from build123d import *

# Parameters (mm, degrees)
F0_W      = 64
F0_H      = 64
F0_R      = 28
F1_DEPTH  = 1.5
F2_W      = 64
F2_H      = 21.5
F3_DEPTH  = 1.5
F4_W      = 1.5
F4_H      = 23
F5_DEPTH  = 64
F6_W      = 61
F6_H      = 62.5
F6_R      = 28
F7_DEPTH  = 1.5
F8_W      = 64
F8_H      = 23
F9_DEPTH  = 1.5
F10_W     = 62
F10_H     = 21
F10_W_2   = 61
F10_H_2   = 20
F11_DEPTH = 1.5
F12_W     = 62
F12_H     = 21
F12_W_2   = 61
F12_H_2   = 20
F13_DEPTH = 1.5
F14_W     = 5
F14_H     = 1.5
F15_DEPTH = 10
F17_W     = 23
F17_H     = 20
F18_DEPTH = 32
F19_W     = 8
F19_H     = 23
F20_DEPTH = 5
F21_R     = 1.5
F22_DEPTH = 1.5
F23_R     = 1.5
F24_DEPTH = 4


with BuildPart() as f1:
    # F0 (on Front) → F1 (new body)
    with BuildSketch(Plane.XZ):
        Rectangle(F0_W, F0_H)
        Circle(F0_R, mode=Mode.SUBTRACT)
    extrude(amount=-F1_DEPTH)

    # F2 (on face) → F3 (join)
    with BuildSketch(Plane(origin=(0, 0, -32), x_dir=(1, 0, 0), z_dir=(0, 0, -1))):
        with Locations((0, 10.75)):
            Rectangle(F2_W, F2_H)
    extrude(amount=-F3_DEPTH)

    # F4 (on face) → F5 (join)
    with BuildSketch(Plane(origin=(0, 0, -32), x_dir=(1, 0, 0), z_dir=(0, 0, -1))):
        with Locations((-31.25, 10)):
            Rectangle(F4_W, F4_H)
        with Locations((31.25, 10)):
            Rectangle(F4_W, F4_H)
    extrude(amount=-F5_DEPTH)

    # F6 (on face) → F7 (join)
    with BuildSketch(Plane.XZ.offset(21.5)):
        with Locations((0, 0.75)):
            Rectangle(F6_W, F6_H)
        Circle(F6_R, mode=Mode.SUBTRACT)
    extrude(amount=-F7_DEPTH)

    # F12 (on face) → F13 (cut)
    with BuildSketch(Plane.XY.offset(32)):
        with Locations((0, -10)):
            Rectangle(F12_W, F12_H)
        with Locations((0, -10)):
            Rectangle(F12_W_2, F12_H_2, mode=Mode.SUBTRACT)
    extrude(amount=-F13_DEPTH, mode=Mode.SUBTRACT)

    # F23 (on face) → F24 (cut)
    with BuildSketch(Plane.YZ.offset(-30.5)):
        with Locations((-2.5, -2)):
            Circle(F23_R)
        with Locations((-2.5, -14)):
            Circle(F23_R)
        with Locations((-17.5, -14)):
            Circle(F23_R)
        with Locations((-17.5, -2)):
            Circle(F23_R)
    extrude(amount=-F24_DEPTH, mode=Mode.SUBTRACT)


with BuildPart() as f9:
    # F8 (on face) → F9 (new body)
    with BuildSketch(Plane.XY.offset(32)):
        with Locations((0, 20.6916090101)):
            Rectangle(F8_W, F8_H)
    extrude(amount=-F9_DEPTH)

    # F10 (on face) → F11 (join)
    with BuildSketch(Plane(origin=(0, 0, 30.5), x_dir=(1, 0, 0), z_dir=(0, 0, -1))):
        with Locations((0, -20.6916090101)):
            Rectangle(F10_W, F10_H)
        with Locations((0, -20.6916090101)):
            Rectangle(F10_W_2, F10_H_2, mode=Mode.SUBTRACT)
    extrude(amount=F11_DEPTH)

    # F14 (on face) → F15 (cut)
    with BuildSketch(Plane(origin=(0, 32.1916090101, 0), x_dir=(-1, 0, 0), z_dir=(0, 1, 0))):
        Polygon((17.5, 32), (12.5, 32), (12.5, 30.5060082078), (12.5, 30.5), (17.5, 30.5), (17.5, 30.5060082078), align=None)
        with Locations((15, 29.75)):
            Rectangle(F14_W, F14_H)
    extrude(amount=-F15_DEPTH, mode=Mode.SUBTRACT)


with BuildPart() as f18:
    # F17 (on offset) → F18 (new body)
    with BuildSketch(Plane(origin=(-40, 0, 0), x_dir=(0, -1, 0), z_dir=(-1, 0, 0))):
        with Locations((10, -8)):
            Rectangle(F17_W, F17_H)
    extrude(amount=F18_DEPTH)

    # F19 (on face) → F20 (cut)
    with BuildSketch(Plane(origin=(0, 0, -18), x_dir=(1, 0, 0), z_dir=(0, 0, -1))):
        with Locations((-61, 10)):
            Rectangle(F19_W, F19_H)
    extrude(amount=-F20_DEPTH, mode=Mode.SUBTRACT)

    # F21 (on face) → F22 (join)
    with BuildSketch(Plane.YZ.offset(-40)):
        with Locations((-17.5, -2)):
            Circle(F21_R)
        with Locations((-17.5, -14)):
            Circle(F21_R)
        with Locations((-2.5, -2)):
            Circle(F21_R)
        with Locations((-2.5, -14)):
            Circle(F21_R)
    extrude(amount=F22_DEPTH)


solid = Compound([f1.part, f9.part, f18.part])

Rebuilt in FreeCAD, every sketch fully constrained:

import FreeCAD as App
import Part
import Sketcher

V = App.Vector
Q = App.Units.Quantity

doc = App.newDocument("Part")
body = doc.addObject("PartDesign::Body", "Body")

sketch1 = doc.addObject("Sketcher::SketchObject", "Sketch")
body.addObject(sketch1)
sketch1.AttachmentSupport = (doc.XZ_Plane, [""])
sketch1.MapMode = "FlatFace"
sketch1.addGeometry(Part.LineSegment(V(-32, 32, 0), V(-32, -32, 0)), False)
sketch1.addGeometry(Part.LineSegment(V(-32, -32, 0), V(32, -32, 0)), False)
sketch1.addGeometry(Part.LineSegment(V(32, -32, 0), V(32, 32, 0)), False)
sketch1.addGeometry(Part.LineSegment(V(32, 32, 0), V(-32, 32, 0)), False)
sketch1.addGeometry(Part.Circle(V(0, 0, 0), V(0, 0, 1), 28), False)
sketch1.addConstraint(Sketcher.Constraint("Coincident", 0, 2, 1, 1))
sketch1.addConstraint(Sketcher.Constraint("Coincident", 1, 2, 2, 1))
sketch1.addConstraint(Sketcher.Constraint("Coincident", 2, 2, 3, 1))
sketch1.addConstraint(Sketcher.Constraint("Coincident", 3, 2, 0, 1))
sketch1.addConstraint(Sketcher.Constraint("Vertical", 0))
sketch1.addConstraint(Sketcher.Constraint("Horizontal", 1))
sketch1.addConstraint(Sketcher.Constraint("Vertical", 2))
sketch1.addConstraint(Sketcher.Constraint("Horizontal", 3))
sketch1.addConstraint(Sketcher.Constraint("Coincident", 4, 3, -1, 1))
sketch1.addConstraint(Sketcher.Constraint("Symmetric", 0, 2, 2, 2, -1, 1))
sketch1.addConstraint(Sketcher.Constraint("Equal", 3, 0))
sketch1.addConstraint(Sketcher.Constraint("Diameter", 4, Q("56 mm")))
sketch1.addConstraint(Sketcher.Constraint("DistanceX", 1, 1, 1, 2, Q("64 mm")))
pad1 = doc.addObject("PartDesign::Pad", "Pad")
body.addObject(pad1)
pad1.Profile = sketch1
pad1.Length = 1.5
pad1.Reversed = True

sketch2 = doc.addObject("Sketcher::SketchObject", "Sketch001")
body.addObject(sketch2)
sketch2.AttachmentSupport = (doc.XY_Plane, [""])
sketch2.MapMode = "FlatFace"
sketch2.AttachmentOffset = App.Placement(V(0, 0, -32), App.Rotation())
sketch2.addGeometry(Part.LineSegment(V(-32, -22, 0), V(-32, 0, 0)), False)
sketch2.addGeometry(Part.LineSegment(V(-32, 0, 0), V(32, 0, 0)), False)
sketch2.addGeometry(Part.LineSegment(V(32, 0, 0), V(32, -22, 0)), False)
sketch2.addGeometry(Part.LineSegment(V(32, -22, 0), V(-32, -22, 0)), False)
sketch2.addConstraint(Sketcher.Constraint("Coincident", 0, 2, 1, 1))
sketch2.addConstraint(Sketcher.Constraint("Coincident", 1, 2, 2, 1))
sketch2.addConstraint(Sketcher.Constraint("Coincident", 2, 2, 3, 1))
sketch2.addConstraint(Sketcher.Constraint("Coincident", 3, 2, 0, 1))
sketch2.addConstraint(Sketcher.Constraint("Vertical", 0))
sketch2.addConstraint(Sketcher.Constraint("Horizontal", 1))
sketch2.addConstraint(Sketcher.Constraint("Vertical", 2))
sketch2.addConstraint(Sketcher.Constraint("Horizontal", 3))
sketch2.addConstraint(Sketcher.Constraint("Symmetric", 0, 2, 1, 2, -1, 1))
sketch2.addConstraint(Sketcher.Constraint("DistanceX", 1, 1, 1, 2, Q("64 mm")))
sketch2.addConstraint(Sketcher.Constraint("DistanceY", 0, 1, 0, 2, Q("21.5 mm")))
pad2 = doc.addObject("PartDesign::Pad", "Pad001")
body.addObject(pad2)
pad2.Profile = sketch2
pad2.Length = 1.5

sketch3 = doc.addObject("Sketcher::SketchObject", "Sketch002")
body.addObject(sketch3)
sketch3.AttachmentSupport = (doc.XY_Plane, [""])
sketch3.MapMode = "FlatFace"
sketch3.AttachmentOffset = App.Placement(V(0, 0, -32), App.Rotation())
sketch3.addGeometry(Part.LineSegment(V(-32, -21.5, 0), V(-32, 1.5, 0)), False)
sketch3.addGeometry(Part.LineSegment(V(-32, 1.5, 0), V(-30.5, 1.5, 0)), False)
sketch3.addGeometry(Part.LineSegment(V(-30.5, 1.5, 0), V(-30.5, -21.5, 0)), False)
sketch3.addGeometry(Part.LineSegment(V(-30.5, -21.5, 0), V(-32, -21.5, 0)), False)
sketch3.addGeometry(Part.LineSegment(V(30.5, -21.5, 0), V(30.5, 1.5, 0)), False)
sketch3.addGeometry(Part.LineSegment(V(30.5, 1.5, 0), V(32, 1.5, 0)), False)
sketch3.addGeometry(Part.LineSegment(V(32, 1.5, 0), V(32, -21.5, 0)), False)
sketch3.addGeometry(Part.LineSegment(V(32, -21.5, 0), V(30.5, -21.5, 0)), False)
sketch3.addConstraint(Sketcher.Constraint("Coincident", 0, 2, 1, 1))
sketch3.addConstraint(Sketcher.Constraint("Coincident", 1, 2, 2, 1))
sketch3.addConstraint(Sketcher.Constraint("Coincident", 2, 2, 3, 1))
sketch3.addConstraint(Sketcher.Constraint("Coincident", 3, 2, 0, 1))
sketch3.addConstraint(Sketcher.Constraint("Coincident", 4, 2, 5, 1))
sketch3.addConstraint(Sketcher.Constraint("Coincident", 5, 2, 6, 1))
sketch3.addConstraint(Sketcher.Constraint("Coincident", 6, 2, 7, 1))
sketch3.addConstraint(Sketcher.Constraint("Coincident", 7, 2, 4, 1))
sketch3.addConstraint(Sketcher.Constraint("Vertical", 0))
sketch3.addConstraint(Sketcher.Constraint("Horizontal", 1))
sketch3.addConstraint(Sketcher.Constraint("Vertical", 2))
sketch3.addConstraint(Sketcher.Constraint("Horizontal", 3))
sketch3.addConstraint(Sketcher.Constraint("Vertical", 4))
sketch3.addConstraint(Sketcher.Constraint("Horizontal", 5))
sketch3.addConstraint(Sketcher.Constraint("Vertical", 6))
sketch3.addConstraint(Sketcher.Constraint("Horizontal", 7))
sketch3.addConstraint(Sketcher.Constraint("Symmetric", 1, 2, 4, 2, -2))
sketch3.addConstraint(Sketcher.Constraint("Symmetric", 3, 2, 6, 2, -2))
sketch3.addConstraint(Sketcher.Constraint("DistanceY", 0, 1, 0, 2, Q("23 mm")))
sketch3.addConstraint(Sketcher.Constraint("DistanceX", 1, 1, 1, 2, Q("1.5 mm")))
sketch3.addConstraint(Sketcher.Constraint("DistanceX", 0, 2, -1, 1, Q("32 mm")))
sketch3.addConstraint(Sketcher.Constraint("DistanceY", -1, 1, 0, 2, Q("1.5 mm")))
pad3 = doc.addObject("PartDesign::Pad", "Pad002")
body.addObject(pad3)
pad3.Profile = sketch3
pad3.Length = 64

sketch4 = doc.addObject("Sketcher::SketchObject", "Sketch003")
body.addObject(sketch4)
sketch4.AttachmentSupport = (doc.XZ_Plane, [""])
sketch4.MapMode = "FlatFace"
sketch4.AttachmentOffset = App.Placement(V(0, 0, 21.5), App.Rotation())
sketch4.addGeometry(Part.LineSegment(V(-30, 32, 0), V(-30, -30, 0)), False)
sketch4.addGeometry(Part.LineSegment(V(-30, -30, 0), V(30, -30, 0)), False)
sketch4.addGeometry(Part.LineSegment(V(30, -30, 0), V(30, 32, 0)), False)
sketch4.addGeometry(Part.LineSegment(V(30, 32, 0), V(-30, 32, 0)), False)
sketch4.addGeometry(Part.Circle(V(0, 0, 0), V(0, 0, 1), 28), False)
sketch4.addConstraint(Sketcher.Constraint("Coincident", 0, 2, 1, 1))
sketch4.addConstraint(Sketcher.Constraint("Coincident", 1, 2, 2, 1))
sketch4.addConstraint(Sketcher.Constraint("Coincident", 2, 2, 3, 1))
sketch4.addConstraint(Sketcher.Constraint("Coincident", 3, 2, 0, 1))
sketch4.addConstraint(Sketcher.Constraint("Vertical", 0))
sketch4.addConstraint(Sketcher.Constraint("Horizontal", 1))
sketch4.addConstraint(Sketcher.Constraint("Vertical", 2))
sketch4.addConstraint(Sketcher.Constraint("Horizontal", 3))
sketch4.addConstraint(Sketcher.Constraint("Coincident", 4, 3, -1, 1))
sketch4.addConstraint(Sketcher.Constraint("Diameter", 4, Q("56 mm")))
sketch4.addConstraint(Sketcher.Constraint("DistanceX", 1, 1, 1, 2, Q("61 mm")))
sketch4.addConstraint(Sketcher.Constraint("DistanceY", 0, 2, 0, 1, Q("62.5 mm")))
sketch4.addConstraint(Sketcher.Constraint("DistanceY", -1, 1, 2, 2, Q("32 mm")))
sketch4.addConstraint(Sketcher.Constraint("DistanceX", 0, 2, -1, 1, Q("30.5 mm")))
pad4 = doc.addObject("PartDesign::Pad", "Pad003")
body.addObject(pad4)
pad4.Profile = sketch4
pad4.Length = 1.5
pad4.Reversed = True

sketch5 = doc.addObject("Sketcher::SketchObject", "Sketch004")
body.addObject(sketch5)
sketch5.AttachmentSupport = (doc.XY_Plane, [""])
sketch5.MapMode = "FlatFace"
sketch5.AttachmentOffset = App.Placement(V(0, 0, 32), App.Rotation())
sketch5.addGeometry(Part.LineSegment(V(-31, 0, 0), V(-31, -20, 0)), False)
sketch5.addGeometry(Part.LineSegment(V(-31, -20, 0), V(31, -20, 0)), False)
sketch5.addGeometry(Part.LineSegment(V(31, -20, 0), V(31, 0, 0)), False)
sketch5.addGeometry(Part.LineSegment(V(31, 0, 0), V(-31, 0, 0)), False)
sketch5.addGeometry(Part.LineSegment(V(30, -20, 0), V(-30, -20, 0)), False)
sketch5.addGeometry(Part.LineSegment(V(-30, -20, 0), V(-30, 0, 0)), False)
sketch5.addGeometry(Part.LineSegment(V(-30, 0, 0), V(30, 0, 0)), False)
sketch5.addGeometry(Part.LineSegment(V(30, 0, 0), V(30, -20, 0)), False)
sketch5.addConstraint(Sketcher.Constraint("Coincident", 0, 2, 1, 1))
sketch5.addConstraint(Sketcher.Constraint("Coincident", 1, 2, 2, 1))
sketch5.addConstraint(Sketcher.Constraint("Coincident", 2, 2, 3, 1))
sketch5.addConstraint(Sketcher.Constraint("Coincident", 3, 2, 0, 1))
sketch5.addConstraint(Sketcher.Constraint("Coincident", 4, 2, 5, 1))
sketch5.addConstraint(Sketcher.Constraint("Coincident", 5, 2, 6, 1))
sketch5.addConstraint(Sketcher.Constraint("Coincident", 6, 2, 7, 1))
sketch5.addConstraint(Sketcher.Constraint("Coincident", 7, 2, 4, 1))
sketch5.addConstraint(Sketcher.Constraint("Vertical", 0))
sketch5.addConstraint(Sketcher.Constraint("Horizontal", 1))
sketch5.addConstraint(Sketcher.Constraint("Vertical", 2))
sketch5.addConstraint(Sketcher.Constraint("Horizontal", 3))
sketch5.addConstraint(Sketcher.Constraint("Horizontal", 4))
sketch5.addConstraint(Sketcher.Constraint("Vertical", 5))
sketch5.addConstraint(Sketcher.Constraint("Horizontal", 6))
sketch5.addConstraint(Sketcher.Constraint("Vertical", 7))
sketch5.addConstraint(Sketcher.Constraint("Symmetric", 5, 2, 6, 2, -1, 1))
sketch5.addConstraint(Sketcher.Constraint("DistanceX", 1, 1, 1, 2, Q("62 mm")))
sketch5.addConstraint(Sketcher.Constraint("DistanceX", 4, 2, 4, 1, Q("61 mm")))
sketch5.addConstraint(Sketcher.Constraint("DistanceY", 0, 2, 0, 1, Q("21 mm")))
sketch5.addConstraint(Sketcher.Constraint("DistanceY", 5, 1, 5, 2, Q("20 mm")))
sketch5.addConstraint(Sketcher.Constraint("DistanceX", 0, 2, -1, 1, Q("31 mm")))
sketch5.addConstraint(Sketcher.Constraint("DistanceY", 0, 2, -1, 1, Q("20.5 mm")))
pocket1 = doc.addObject("PartDesign::Pocket", "Pocket")
body.addObject(pocket1)
pocket1.Profile = sketch5
pocket1.Length = 1.5

sketch6 = doc.addObject("Sketcher::SketchObject", "Sketch005")
body.addObject(sketch6)
sketch6.AttachmentSupport = (doc.YZ_Plane, [""])
sketch6.MapMode = "FlatFace"
sketch6.AttachmentOffset = App.Placement(V(0, 0, -30.5), App.Rotation())
sketch6.addGeometry(Part.Circle(V(-2.5, -2, 0), V(0, 0, 1), 1.5), False)
sketch6.addGeometry(Part.Circle(V(-2.5, -14, 0), V(0, 0, 1), 1.5), False)
sketch6.addGeometry(Part.Circle(V(-17.5, -14, 0), V(0, 0, 1), 1.5), False)
sketch6.addGeometry(Part.Circle(V(-17.5, -2, 0), V(0, 0, 1), 1.5), False)
sketch6.addConstraint(Sketcher.Constraint("Equal", 0, 1))
sketch6.addConstraint(Sketcher.Constraint("Equal", 1, 2))
sketch6.addConstraint(Sketcher.Constraint("Equal", 2, 3))
sketch6.addConstraint(Sketcher.Constraint("Horizontal", 1, 3, 2, 3))
sketch6.addConstraint(Sketcher.Constraint("Horizontal", 0, 3, 3, 3))
sketch6.addConstraint(Sketcher.Constraint("Vertical", 0, 3, 1, 3))
sketch6.addConstraint(Sketcher.Constraint("Vertical", 2, 3, 3, 3))
sketch6.addConstraint(Sketcher.Constraint("Diameter", 0, Q("3 mm")))
sketch6.addConstraint(Sketcher.Constraint("DistanceY", 0, 3, -1, 1, Q("2 mm")))
sketch6.addConstraint(Sketcher.Constraint("DistanceY", 1, 3, -1, 1, Q("14 mm")))
sketch6.addConstraint(Sketcher.Constraint("DistanceX", 2, 3, 1, 3, Q("15 mm")))
sketch6.addConstraint(Sketcher.Constraint("DistanceX", 0, 3, -1, 1, Q("2.5 mm")))
pocket2 = doc.addObject("PartDesign::Pocket", "Pocket001")
body.addObject(pocket2)
pocket2.Profile = sketch6
pocket2.Length = 4
body2 = doc.addObject("PartDesign::Body", "Body001")

sketch7 = doc.addObject("Sketcher::SketchObject", "Sketch006")
body2.addObject(sketch7)
sketch7.AttachmentSupport = (doc.getObject("XY_Plane001"), [""])
sketch7.MapMode = "FlatFace"
sketch7.AttachmentOffset = App.Placement(V(0, 0, 32), App.Rotation())
sketch7.addGeometry(Part.LineSegment(V(-32, 32, 0), V(-32, 9, 0)), False)
sketch7.addGeometry(Part.LineSegment(V(-32, 9, 0), V(32, 9, 0)), False)
sketch7.addGeometry(Part.LineSegment(V(32, 9, 0), V(32, 32, 0)), False)
sketch7.addGeometry(Part.LineSegment(V(32, 32, 0), V(-32, 32, 0)), False)
sketch7.addConstraint(Sketcher.Constraint("Coincident", 0, 2, 1, 1))
sketch7.addConstraint(Sketcher.Constraint("Coincident", 1, 2, 2, 1))
sketch7.addConstraint(Sketcher.Constraint("Coincident", 2, 2, 3, 1))
sketch7.addConstraint(Sketcher.Constraint("Coincident", 3, 2, 0, 1))
sketch7.addConstraint(Sketcher.Constraint("Vertical", 0))
sketch7.addConstraint(Sketcher.Constraint("Horizontal", 1))
sketch7.addConstraint(Sketcher.Constraint("Vertical", 2))
sketch7.addConstraint(Sketcher.Constraint("Horizontal", 3))
sketch7.addConstraint(Sketcher.Constraint("DistanceX", 1, 1, 1, 2, Q("64 mm")))
sketch7.addConstraint(Sketcher.Constraint("DistanceY", 0, 2, 0, 1, Q("23 mm")))
sketch7.addConstraint(Sketcher.Constraint("DistanceX", 0, 2, -1, 1, Q("32 mm")))
sketch7.addConstraint(Sketcher.Constraint("DistanceY", -1, 1, 0, 2, Q("9.191609 mm")))
pad5 = doc.addObject("PartDesign::Pad", "Pad004")
body2.addObject(pad5)
pad5.Profile = sketch7
pad5.Length = 1.5
pad5.Reversed = True

sketch8 = doc.addObject("Sketcher::SketchObject", "Sketch007")
body2.addObject(sketch8)
sketch8.AttachmentSupport = (doc.getObject("XY_Plane001"), [""])
sketch8.MapMode = "FlatFace"
sketch8.AttachmentOffset = App.Placement(V(0, 0, 30.5), App.Rotation())
sketch8.addGeometry(Part.LineSegment(V(-31, 10, 0), V(-31, 31, 0)), False)
sketch8.addGeometry(Part.LineSegment(V(-31, 31, 0), V(31, 31, 0)), False)
sketch8.addGeometry(Part.LineSegment(V(31, 31, 0), V(31, 10, 0)), False)
sketch8.addGeometry(Part.LineSegment(V(31, 10, 0), V(-31, 10, 0)), False)
sketch8.addGeometry(Part.LineSegment(V(30, 31, 0), V(-30, 31, 0)), False)
sketch8.addGeometry(Part.LineSegment(V(-30, 31, 0), V(-30, 11, 0)), False)
sketch8.addGeometry(Part.LineSegment(V(-30, 11, 0), V(30, 11, 0)), False)
sketch8.addGeometry(Part.LineSegment(V(30, 11, 0), V(30, 31, 0)), False)
sketch8.addConstraint(Sketcher.Constraint("Coincident", 0, 2, 1, 1))
sketch8.addConstraint(Sketcher.Constraint("Coincident", 1, 2, 2, 1))
sketch8.addConstraint(Sketcher.Constraint("Coincident", 2, 2, 3, 1))
sketch8.addConstraint(Sketcher.Constraint("Coincident", 3, 2, 0, 1))
sketch8.addConstraint(Sketcher.Constraint("Coincident", 4, 2, 5, 1))
sketch8.addConstraint(Sketcher.Constraint("Coincident", 5, 2, 6, 1))
sketch8.addConstraint(Sketcher.Constraint("Coincident", 6, 2, 7, 1))
sketch8.addConstraint(Sketcher.Constraint("Coincident", 7, 2, 4, 1))
sketch8.addConstraint(Sketcher.Constraint("Vertical", 0))
sketch8.addConstraint(Sketcher.Constraint("Horizontal", 1))
sketch8.addConstraint(Sketcher.Constraint("Vertical", 2))
sketch8.addConstraint(Sketcher.Constraint("Horizontal", 3))
sketch8.addConstraint(Sketcher.Constraint("Horizontal", 4))
sketch8.addConstraint(Sketcher.Constraint("Vertical", 5))
sketch8.addConstraint(Sketcher.Constraint("Horizontal", 6))
sketch8.addConstraint(Sketcher.Constraint("Vertical", 7))
sketch8.addConstraint(Sketcher.Constraint("DistanceX", 1, 1, 1, 2, Q("62 mm")))
sketch8.addConstraint(Sketcher.Constraint("DistanceX", 4, 2, 4, 1, Q("61 mm")))
sketch8.addConstraint(Sketcher.Constraint("DistanceY", 0, 1, 0, 2, Q("21 mm")))
sketch8.addConstraint(Sketcher.Constraint("DistanceY", 5, 2, 5, 1, Q("20 mm")))
sketch8.addConstraint(Sketcher.Constraint("DistanceX", 0, 2, -1, 1, Q("31 mm")))
sketch8.addConstraint(Sketcher.Constraint("DistanceX", 4, 2, -1, 1, Q("30.5 mm")))
sketch8.addConstraint(Sketcher.Constraint("DistanceY", 4, 2, 0, 2, Q("0.5 mm")))
sketch8.addConstraint(Sketcher.Constraint("DistanceY", -1, 1, 0, 2, Q("31.191609 mm")))
pad6 = doc.addObject("PartDesign::Pad", "Pad005")
body2.addObject(pad6)
pad6.Profile = sketch8
pad6.Length = 1.5
pad6.Reversed = True

sketch9 = doc.addObject("Sketcher::SketchObject", "Sketch008")
body2.addObject(sketch9)
sketch9.AttachmentSupport = (doc.getObject("XZ_Plane001"), [""])
sketch9.MapMode = "FlatFace"
sketch9.AttachmentOffset = App.Placement(V(0, 0, -32.191609), App.Rotation())
sketch9.addGeometry(Part.LineSegment(V(-17.5, 32, 0), V(-12.5, 32, 0)), False)
sketch9.addGeometry(Part.LineSegment(V(-12.5, 32, 0), V(-12.5, 29, 0)), False)
sketch9.addGeometry(Part.LineSegment(V(-12.5, 29, 0), V(-17.5, 29, 0)), False)
sketch9.addGeometry(Part.LineSegment(V(-17.5, 29, 0), V(-17.5, 32, 0)), False)
sketch9.addConstraint(Sketcher.Constraint("Coincident", 0, 2, 1, 1))
sketch9.addConstraint(Sketcher.Constraint("Coincident", 1, 2, 2, 1))
sketch9.addConstraint(Sketcher.Constraint("Coincident", 2, 2, 3, 1))
sketch9.addConstraint(Sketcher.Constraint("Coincident", 3, 2, 0, 1))
sketch9.addConstraint(Sketcher.Constraint("Horizontal", 0))
sketch9.addConstraint(Sketcher.Constraint("Vertical", 1))
sketch9.addConstraint(Sketcher.Constraint("Horizontal", 2))
sketch9.addConstraint(Sketcher.Constraint("Vertical", 3))
sketch9.addConstraint(Sketcher.Constraint("DistanceX", 0, 1, 0, 2, Q("5 mm")))
sketch9.addConstraint(Sketcher.Constraint("DistanceY", 1, 2, 1, 1, Q("3 mm")))
sketch9.addConstraint(Sketcher.Constraint("DistanceY", -1, 1, 0, 2, Q("32 mm")))
sketch9.addConstraint(Sketcher.Constraint("DistanceX", 0, 2, -1, 1, Q("12.5 mm")))
pocket3 = doc.addObject("PartDesign::Pocket", "Pocket002")
body2.addObject(pocket3)
pocket3.Profile = sketch9
pocket3.Length = 10
pocket3.Reversed = True
body3 = doc.addObject("PartDesign::Body", "Body002")

sketch10 = doc.addObject("Sketcher::SketchObject", "Sketch009")
body3.addObject(sketch10)
sketch10.AttachmentSupport = (doc.getObject("YZ_Plane002"), [""])
sketch10.MapMode = "FlatFace"
sketch10.AttachmentOffset = App.Placement(V(0, 0, -40), App.Rotation())
sketch10.addGeometry(Part.LineSegment(V(2, 2, 0), V(2, -18, 0)), False)
sketch10.addGeometry(Part.LineSegment(V(2, -18, 0), V(-22, -18, 0)), False)
sketch10.addGeometry(Part.LineSegment(V(-22, -18, 0), V(-22, 2, 0)), False)
sketch10.addGeometry(Part.LineSegment(V(-22, 2, 0), V(2, 2, 0)), False)
sketch10.addConstraint(Sketcher.Constraint("Coincident", 0, 2, 1, 1))
sketch10.addConstraint(Sketcher.Constraint("Coincident", 1, 2, 2, 1))
sketch10.addConstraint(Sketcher.Constraint("Coincident", 2, 2, 3, 1))
sketch10.addConstraint(Sketcher.Constraint("Coincident", 3, 2, 0, 1))
sketch10.addConstraint(Sketcher.Constraint("Vertical", 0))
sketch10.addConstraint(Sketcher.Constraint("Horizontal", 1))
sketch10.addConstraint(Sketcher.Constraint("Vertical", 2))
sketch10.addConstraint(Sketcher.Constraint("Horizontal", 3))
sketch10.addConstraint(Sketcher.Constraint("DistanceX", 1, 2, 1, 1, Q("23 mm")))
sketch10.addConstraint(Sketcher.Constraint("DistanceY", 0, 2, 0, 1, Q("20 mm")))
sketch10.addConstraint(Sketcher.Constraint("DistanceY", 0, 2, -1, 1, Q("18 mm")))
sketch10.addConstraint(Sketcher.Constraint("DistanceX", -1, 1, 0, 2, Q("1.5 mm")))
pad7 = doc.addObject("PartDesign::Pad", "Pad006")
body3.addObject(pad7)
pad7.Profile = sketch10
pad7.Length = 32
pad7.Reversed = True

sketch11 = doc.addObject("Sketcher::SketchObject", "Sketch010")
body3.addObject(sketch11)
sketch11.AttachmentSupport = (doc.getObject("XY_Plane002"), [""])
sketch11.MapMode = "FlatFace"
sketch11.AttachmentOffset = App.Placement(V(0, 0, -18), App.Rotation())
sketch11.addGeometry(Part.LineSegment(V(-65, -22, 0), V(-65, 2, 0)), False)
sketch11.addGeometry(Part.LineSegment(V(-65, 2, 0), V(-57, 2, 0)), False)
sketch11.addGeometry(Part.LineSegment(V(-57, 2, 0), V(-57, -22, 0)), False)
sketch11.addGeometry(Part.LineSegment(V(-57, -22, 0), V(-65, -22, 0)), False)
sketch11.addConstraint(Sketcher.Constraint("Coincident", 0, 2, 1, 1))
sketch11.addConstraint(Sketcher.Constraint("Coincident", 1, 2, 2, 1))
sketch11.addConstraint(Sketcher.Constraint("Coincident", 2, 2, 3, 1))
sketch11.addConstraint(Sketcher.Constraint("Coincident", 3, 2, 0, 1))
sketch11.addConstraint(Sketcher.Constraint("Vertical", 0))
sketch11.addConstraint(Sketcher.Constraint("Horizontal", 1))
sketch11.addConstraint(Sketcher.Constraint("Vertical", 2))
sketch11.addConstraint(Sketcher.Constraint("Horizontal", 3))
sketch11.addConstraint(Sketcher.Constraint("DistanceX", 1, 1, 1, 2, Q("8 mm")))
sketch11.addConstraint(Sketcher.Constraint("DistanceY", 0, 1, 0, 2, Q("23 mm")))
sketch11.addConstraint(Sketcher.Constraint("DistanceX", 0, 2, -1, 1, Q("65 mm")))
sketch11.addConstraint(Sketcher.Constraint("DistanceY", -1, 1, 0, 2, Q("1.5 mm")))
pocket4 = doc.addObject("PartDesign::Pocket", "Pocket003")
body3.addObject(pocket4)
pocket4.Profile = sketch11
pocket4.Length = 5
pocket4.Reversed = True

sketch12 = doc.addObject("Sketcher::SketchObject", "Sketch011")
body3.addObject(sketch12)
sketch12.AttachmentSupport = (doc.getObject("YZ_Plane002"), [""])
sketch12.MapMode = "FlatFace"
sketch12.AttachmentOffset = App.Placement(V(0, 0, -40), App.Rotation())
sketch12.addGeometry(Part.Circle(V(-17.5, -2, 0), V(0, 0, 1), 1.5), False)
sketch12.addGeometry(Part.Circle(V(-17.5, -14, 0), V(0, 0, 1), 1.5), False)
sketch12.addGeometry(Part.Circle(V(-2.5, -2, 0), V(0, 0, 1), 1.5), False)
sketch12.addGeometry(Part.Circle(V(-2.5, -14, 0), V(0, 0, 1), 1.5), False)
sketch12.addConstraint(Sketcher.Constraint("Equal", 0, 1))
sketch12.addConstraint(Sketcher.Constraint("Equal", 1, 2))
sketch12.addConstraint(Sketcher.Constraint("Equal", 2, 3))
sketch12.addConstraint(Sketcher.Constraint("Horizontal", 0, 3, 2, 3))
sketch12.addConstraint(Sketcher.Constraint("Horizontal", 1, 3, 3, 3))
sketch12.addConstraint(Sketcher.Constraint("Vertical", 0, 3, 1, 3))
sketch12.addConstraint(Sketcher.Constraint("Vertical", 2, 3, 3, 3))
sketch12.addConstraint(Sketcher.Constraint("Diameter", 0, Q("3 mm")))
sketch12.addConstraint(Sketcher.Constraint("DistanceY", 0, 3, -1, 1, Q("2 mm")))
sketch12.addConstraint(Sketcher.Constraint("DistanceY", 1, 3, -1, 1, Q("14 mm")))
sketch12.addConstraint(Sketcher.Constraint("DistanceX", 0, 3, 2, 3, Q("15 mm")))
sketch12.addConstraint(Sketcher.Constraint("DistanceX", 0, 3, -1, 1, Q("17.5 mm")))
pad8 = doc.addObject("PartDesign::Pad", "Pad007")
body3.addObject(pad8)
pad8.Profile = sketch12
pad8.Length = 1.5

doc.recompute()
